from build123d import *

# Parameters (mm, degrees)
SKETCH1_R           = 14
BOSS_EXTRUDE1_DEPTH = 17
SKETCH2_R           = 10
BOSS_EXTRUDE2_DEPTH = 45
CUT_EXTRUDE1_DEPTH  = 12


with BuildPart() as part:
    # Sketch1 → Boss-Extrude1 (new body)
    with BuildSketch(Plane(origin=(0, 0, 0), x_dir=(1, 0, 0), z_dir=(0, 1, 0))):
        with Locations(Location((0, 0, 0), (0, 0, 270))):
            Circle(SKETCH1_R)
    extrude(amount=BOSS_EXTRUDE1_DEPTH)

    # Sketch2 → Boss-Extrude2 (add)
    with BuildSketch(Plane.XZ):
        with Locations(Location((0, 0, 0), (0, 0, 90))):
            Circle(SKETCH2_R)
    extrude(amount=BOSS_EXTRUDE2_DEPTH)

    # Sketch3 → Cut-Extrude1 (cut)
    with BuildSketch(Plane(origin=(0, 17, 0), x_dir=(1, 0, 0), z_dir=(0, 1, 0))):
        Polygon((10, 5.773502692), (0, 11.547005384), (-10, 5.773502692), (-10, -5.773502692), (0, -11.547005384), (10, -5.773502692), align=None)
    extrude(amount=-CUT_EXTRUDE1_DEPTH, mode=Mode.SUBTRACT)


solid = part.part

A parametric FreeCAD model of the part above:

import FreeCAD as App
import Part
import Sketcher
Q = App.Units.Quantity

doc = App.newDocument("Part")
body = doc.addObject("PartDesign::Body", "Body")

# Sketch on XZ plane
sketch1 = doc.addObject("Sketcher::SketchObject", "Sketch")
body.addObject(sketch1)
sketch1.AttachmentSupport = (doc.XZ_Plane, [""])
sketch1.MapMode = "FlatFace"
sketch1.addGeometry(Part.Circle(App.Vector(0, 0, 0), App.Vector(0, 0, 1), 14), False)
sketch1.addConstraint([
    Sketcher.Constraint("Coincident", 0, 3, -1, 1),
    Sketcher.Constraint("Diameter", 0, 28.0),
])
pad1 = doc.addObject("PartDesign::Pad", "Pad")
body.addObject(pad1)
pad1.Profile = sketch1
pad1.Length = 17
pad1.Reversed = True

# Sketch on XZ plane
sketch2 = doc.addObject("Sketcher::SketchObject", "Sketch001")
body.addObject(sketch2)
sketch2.AttachmentSupport = (doc.XZ_Plane, [""])
sketch2.MapMode = "FlatFace"
sketch2.addGeometry(Part.Circle(App.Vector(0, 0, 0), App.Vector(0, 0, 1), 10), False)
sketch2.addConstraint([
    Sketcher.Constraint("Coincident", 0, 3, -1, 1),
    Sketcher.Constraint("Diameter", 0, 20.0),
])
pad2 = doc.addObject("PartDesign::Pad", "Pad001")
body.addObject(pad2)
pad2.Profile = sketch2
pad2.Length = 45

# Sketch on XZ plane
sketch3 = doc.addObject("Sketcher::SketchObject", "Sketch002")
body.addObject(sketch3)
sketch3.AttachmentSupport = (doc.XZ_Plane, [""])
sketch3.MapMode = "FlatFace"
sketch3.AttachmentOffset = App.Placement(App.Vector(0, 0, -17), App.Rotation())
sketch3.addGeometry([
    Part.LineSegment(App.Vector(10, -6, 0), App.Vector(0, -12, 0)),  # 0
    Part.LineSegment(App.Vector(0, -12, 0), App.Vector(-10, -6, 0)),  # 1
    Part.LineSegment(App.Vector(-10, -6, 0), App.Vector(-10, 6, 0)),  # 2
    Part.LineSegment(App.Vector(-10, 6, 0), App.Vector(0, 12, 0)),  # 3
    Part.LineSegment(App.Vector(0, 12, 0), App.Vector(10, 6, 0)),  # 4
    Part.LineSegment(App.Vector(10, 6, 0), App.Vector(10, -6, 0)),  # 5
], False)
sketch3.addConstraint([
    Sketcher.Constraint("Coincident", 0, 2, 1, 1),
    Sketcher.Constraint("Coincident", 1, 2, 2, 1),
    Sketcher.Constraint("Coincident", 2, 2, 3, 1),
    Sketcher.Constraint("Coincident", 3, 2, 4, 1),
    Sketcher.Constraint("Coincident", 4, 2, 5, 1),
    Sketcher.Constraint("Coincident", 5, 2, 0, 1),
    Sketcher.Constraint("Vertical", 2),
    Sketcher.Constraint("Vertical", 5),
    Sketcher.Constraint("Symmetric", 0, 2, 3, 2, -1, 1),
    Sketcher.Constraint("Symmetric", 1, 2, 4, 2, -1, 1),
    Sketcher.Constraint("PointOnObject", 0, 2, -2),
    Sketcher.Constraint("Parallel", 0, 3),
    Sketcher.Constraint("Horizontal", 2, 2, 4, 2),
    Sketcher.Constraint("Angle", 0, Q("-150 deg")),
    Sketcher.Constraint("DistanceX", 1, 2, -1, 1, 10.0),
    Sketcher.Constraint("DistanceY", 2, 1, 2, 2, 11.547005),
])
pocket1 = doc.addObject("PartDesign::Pocket", "Pocket")
body.addObject(pocket1)
pocket1.Profile = sketch3
pocket1.Length = 12
pocket1.Reversed = True

doc.recompute()
